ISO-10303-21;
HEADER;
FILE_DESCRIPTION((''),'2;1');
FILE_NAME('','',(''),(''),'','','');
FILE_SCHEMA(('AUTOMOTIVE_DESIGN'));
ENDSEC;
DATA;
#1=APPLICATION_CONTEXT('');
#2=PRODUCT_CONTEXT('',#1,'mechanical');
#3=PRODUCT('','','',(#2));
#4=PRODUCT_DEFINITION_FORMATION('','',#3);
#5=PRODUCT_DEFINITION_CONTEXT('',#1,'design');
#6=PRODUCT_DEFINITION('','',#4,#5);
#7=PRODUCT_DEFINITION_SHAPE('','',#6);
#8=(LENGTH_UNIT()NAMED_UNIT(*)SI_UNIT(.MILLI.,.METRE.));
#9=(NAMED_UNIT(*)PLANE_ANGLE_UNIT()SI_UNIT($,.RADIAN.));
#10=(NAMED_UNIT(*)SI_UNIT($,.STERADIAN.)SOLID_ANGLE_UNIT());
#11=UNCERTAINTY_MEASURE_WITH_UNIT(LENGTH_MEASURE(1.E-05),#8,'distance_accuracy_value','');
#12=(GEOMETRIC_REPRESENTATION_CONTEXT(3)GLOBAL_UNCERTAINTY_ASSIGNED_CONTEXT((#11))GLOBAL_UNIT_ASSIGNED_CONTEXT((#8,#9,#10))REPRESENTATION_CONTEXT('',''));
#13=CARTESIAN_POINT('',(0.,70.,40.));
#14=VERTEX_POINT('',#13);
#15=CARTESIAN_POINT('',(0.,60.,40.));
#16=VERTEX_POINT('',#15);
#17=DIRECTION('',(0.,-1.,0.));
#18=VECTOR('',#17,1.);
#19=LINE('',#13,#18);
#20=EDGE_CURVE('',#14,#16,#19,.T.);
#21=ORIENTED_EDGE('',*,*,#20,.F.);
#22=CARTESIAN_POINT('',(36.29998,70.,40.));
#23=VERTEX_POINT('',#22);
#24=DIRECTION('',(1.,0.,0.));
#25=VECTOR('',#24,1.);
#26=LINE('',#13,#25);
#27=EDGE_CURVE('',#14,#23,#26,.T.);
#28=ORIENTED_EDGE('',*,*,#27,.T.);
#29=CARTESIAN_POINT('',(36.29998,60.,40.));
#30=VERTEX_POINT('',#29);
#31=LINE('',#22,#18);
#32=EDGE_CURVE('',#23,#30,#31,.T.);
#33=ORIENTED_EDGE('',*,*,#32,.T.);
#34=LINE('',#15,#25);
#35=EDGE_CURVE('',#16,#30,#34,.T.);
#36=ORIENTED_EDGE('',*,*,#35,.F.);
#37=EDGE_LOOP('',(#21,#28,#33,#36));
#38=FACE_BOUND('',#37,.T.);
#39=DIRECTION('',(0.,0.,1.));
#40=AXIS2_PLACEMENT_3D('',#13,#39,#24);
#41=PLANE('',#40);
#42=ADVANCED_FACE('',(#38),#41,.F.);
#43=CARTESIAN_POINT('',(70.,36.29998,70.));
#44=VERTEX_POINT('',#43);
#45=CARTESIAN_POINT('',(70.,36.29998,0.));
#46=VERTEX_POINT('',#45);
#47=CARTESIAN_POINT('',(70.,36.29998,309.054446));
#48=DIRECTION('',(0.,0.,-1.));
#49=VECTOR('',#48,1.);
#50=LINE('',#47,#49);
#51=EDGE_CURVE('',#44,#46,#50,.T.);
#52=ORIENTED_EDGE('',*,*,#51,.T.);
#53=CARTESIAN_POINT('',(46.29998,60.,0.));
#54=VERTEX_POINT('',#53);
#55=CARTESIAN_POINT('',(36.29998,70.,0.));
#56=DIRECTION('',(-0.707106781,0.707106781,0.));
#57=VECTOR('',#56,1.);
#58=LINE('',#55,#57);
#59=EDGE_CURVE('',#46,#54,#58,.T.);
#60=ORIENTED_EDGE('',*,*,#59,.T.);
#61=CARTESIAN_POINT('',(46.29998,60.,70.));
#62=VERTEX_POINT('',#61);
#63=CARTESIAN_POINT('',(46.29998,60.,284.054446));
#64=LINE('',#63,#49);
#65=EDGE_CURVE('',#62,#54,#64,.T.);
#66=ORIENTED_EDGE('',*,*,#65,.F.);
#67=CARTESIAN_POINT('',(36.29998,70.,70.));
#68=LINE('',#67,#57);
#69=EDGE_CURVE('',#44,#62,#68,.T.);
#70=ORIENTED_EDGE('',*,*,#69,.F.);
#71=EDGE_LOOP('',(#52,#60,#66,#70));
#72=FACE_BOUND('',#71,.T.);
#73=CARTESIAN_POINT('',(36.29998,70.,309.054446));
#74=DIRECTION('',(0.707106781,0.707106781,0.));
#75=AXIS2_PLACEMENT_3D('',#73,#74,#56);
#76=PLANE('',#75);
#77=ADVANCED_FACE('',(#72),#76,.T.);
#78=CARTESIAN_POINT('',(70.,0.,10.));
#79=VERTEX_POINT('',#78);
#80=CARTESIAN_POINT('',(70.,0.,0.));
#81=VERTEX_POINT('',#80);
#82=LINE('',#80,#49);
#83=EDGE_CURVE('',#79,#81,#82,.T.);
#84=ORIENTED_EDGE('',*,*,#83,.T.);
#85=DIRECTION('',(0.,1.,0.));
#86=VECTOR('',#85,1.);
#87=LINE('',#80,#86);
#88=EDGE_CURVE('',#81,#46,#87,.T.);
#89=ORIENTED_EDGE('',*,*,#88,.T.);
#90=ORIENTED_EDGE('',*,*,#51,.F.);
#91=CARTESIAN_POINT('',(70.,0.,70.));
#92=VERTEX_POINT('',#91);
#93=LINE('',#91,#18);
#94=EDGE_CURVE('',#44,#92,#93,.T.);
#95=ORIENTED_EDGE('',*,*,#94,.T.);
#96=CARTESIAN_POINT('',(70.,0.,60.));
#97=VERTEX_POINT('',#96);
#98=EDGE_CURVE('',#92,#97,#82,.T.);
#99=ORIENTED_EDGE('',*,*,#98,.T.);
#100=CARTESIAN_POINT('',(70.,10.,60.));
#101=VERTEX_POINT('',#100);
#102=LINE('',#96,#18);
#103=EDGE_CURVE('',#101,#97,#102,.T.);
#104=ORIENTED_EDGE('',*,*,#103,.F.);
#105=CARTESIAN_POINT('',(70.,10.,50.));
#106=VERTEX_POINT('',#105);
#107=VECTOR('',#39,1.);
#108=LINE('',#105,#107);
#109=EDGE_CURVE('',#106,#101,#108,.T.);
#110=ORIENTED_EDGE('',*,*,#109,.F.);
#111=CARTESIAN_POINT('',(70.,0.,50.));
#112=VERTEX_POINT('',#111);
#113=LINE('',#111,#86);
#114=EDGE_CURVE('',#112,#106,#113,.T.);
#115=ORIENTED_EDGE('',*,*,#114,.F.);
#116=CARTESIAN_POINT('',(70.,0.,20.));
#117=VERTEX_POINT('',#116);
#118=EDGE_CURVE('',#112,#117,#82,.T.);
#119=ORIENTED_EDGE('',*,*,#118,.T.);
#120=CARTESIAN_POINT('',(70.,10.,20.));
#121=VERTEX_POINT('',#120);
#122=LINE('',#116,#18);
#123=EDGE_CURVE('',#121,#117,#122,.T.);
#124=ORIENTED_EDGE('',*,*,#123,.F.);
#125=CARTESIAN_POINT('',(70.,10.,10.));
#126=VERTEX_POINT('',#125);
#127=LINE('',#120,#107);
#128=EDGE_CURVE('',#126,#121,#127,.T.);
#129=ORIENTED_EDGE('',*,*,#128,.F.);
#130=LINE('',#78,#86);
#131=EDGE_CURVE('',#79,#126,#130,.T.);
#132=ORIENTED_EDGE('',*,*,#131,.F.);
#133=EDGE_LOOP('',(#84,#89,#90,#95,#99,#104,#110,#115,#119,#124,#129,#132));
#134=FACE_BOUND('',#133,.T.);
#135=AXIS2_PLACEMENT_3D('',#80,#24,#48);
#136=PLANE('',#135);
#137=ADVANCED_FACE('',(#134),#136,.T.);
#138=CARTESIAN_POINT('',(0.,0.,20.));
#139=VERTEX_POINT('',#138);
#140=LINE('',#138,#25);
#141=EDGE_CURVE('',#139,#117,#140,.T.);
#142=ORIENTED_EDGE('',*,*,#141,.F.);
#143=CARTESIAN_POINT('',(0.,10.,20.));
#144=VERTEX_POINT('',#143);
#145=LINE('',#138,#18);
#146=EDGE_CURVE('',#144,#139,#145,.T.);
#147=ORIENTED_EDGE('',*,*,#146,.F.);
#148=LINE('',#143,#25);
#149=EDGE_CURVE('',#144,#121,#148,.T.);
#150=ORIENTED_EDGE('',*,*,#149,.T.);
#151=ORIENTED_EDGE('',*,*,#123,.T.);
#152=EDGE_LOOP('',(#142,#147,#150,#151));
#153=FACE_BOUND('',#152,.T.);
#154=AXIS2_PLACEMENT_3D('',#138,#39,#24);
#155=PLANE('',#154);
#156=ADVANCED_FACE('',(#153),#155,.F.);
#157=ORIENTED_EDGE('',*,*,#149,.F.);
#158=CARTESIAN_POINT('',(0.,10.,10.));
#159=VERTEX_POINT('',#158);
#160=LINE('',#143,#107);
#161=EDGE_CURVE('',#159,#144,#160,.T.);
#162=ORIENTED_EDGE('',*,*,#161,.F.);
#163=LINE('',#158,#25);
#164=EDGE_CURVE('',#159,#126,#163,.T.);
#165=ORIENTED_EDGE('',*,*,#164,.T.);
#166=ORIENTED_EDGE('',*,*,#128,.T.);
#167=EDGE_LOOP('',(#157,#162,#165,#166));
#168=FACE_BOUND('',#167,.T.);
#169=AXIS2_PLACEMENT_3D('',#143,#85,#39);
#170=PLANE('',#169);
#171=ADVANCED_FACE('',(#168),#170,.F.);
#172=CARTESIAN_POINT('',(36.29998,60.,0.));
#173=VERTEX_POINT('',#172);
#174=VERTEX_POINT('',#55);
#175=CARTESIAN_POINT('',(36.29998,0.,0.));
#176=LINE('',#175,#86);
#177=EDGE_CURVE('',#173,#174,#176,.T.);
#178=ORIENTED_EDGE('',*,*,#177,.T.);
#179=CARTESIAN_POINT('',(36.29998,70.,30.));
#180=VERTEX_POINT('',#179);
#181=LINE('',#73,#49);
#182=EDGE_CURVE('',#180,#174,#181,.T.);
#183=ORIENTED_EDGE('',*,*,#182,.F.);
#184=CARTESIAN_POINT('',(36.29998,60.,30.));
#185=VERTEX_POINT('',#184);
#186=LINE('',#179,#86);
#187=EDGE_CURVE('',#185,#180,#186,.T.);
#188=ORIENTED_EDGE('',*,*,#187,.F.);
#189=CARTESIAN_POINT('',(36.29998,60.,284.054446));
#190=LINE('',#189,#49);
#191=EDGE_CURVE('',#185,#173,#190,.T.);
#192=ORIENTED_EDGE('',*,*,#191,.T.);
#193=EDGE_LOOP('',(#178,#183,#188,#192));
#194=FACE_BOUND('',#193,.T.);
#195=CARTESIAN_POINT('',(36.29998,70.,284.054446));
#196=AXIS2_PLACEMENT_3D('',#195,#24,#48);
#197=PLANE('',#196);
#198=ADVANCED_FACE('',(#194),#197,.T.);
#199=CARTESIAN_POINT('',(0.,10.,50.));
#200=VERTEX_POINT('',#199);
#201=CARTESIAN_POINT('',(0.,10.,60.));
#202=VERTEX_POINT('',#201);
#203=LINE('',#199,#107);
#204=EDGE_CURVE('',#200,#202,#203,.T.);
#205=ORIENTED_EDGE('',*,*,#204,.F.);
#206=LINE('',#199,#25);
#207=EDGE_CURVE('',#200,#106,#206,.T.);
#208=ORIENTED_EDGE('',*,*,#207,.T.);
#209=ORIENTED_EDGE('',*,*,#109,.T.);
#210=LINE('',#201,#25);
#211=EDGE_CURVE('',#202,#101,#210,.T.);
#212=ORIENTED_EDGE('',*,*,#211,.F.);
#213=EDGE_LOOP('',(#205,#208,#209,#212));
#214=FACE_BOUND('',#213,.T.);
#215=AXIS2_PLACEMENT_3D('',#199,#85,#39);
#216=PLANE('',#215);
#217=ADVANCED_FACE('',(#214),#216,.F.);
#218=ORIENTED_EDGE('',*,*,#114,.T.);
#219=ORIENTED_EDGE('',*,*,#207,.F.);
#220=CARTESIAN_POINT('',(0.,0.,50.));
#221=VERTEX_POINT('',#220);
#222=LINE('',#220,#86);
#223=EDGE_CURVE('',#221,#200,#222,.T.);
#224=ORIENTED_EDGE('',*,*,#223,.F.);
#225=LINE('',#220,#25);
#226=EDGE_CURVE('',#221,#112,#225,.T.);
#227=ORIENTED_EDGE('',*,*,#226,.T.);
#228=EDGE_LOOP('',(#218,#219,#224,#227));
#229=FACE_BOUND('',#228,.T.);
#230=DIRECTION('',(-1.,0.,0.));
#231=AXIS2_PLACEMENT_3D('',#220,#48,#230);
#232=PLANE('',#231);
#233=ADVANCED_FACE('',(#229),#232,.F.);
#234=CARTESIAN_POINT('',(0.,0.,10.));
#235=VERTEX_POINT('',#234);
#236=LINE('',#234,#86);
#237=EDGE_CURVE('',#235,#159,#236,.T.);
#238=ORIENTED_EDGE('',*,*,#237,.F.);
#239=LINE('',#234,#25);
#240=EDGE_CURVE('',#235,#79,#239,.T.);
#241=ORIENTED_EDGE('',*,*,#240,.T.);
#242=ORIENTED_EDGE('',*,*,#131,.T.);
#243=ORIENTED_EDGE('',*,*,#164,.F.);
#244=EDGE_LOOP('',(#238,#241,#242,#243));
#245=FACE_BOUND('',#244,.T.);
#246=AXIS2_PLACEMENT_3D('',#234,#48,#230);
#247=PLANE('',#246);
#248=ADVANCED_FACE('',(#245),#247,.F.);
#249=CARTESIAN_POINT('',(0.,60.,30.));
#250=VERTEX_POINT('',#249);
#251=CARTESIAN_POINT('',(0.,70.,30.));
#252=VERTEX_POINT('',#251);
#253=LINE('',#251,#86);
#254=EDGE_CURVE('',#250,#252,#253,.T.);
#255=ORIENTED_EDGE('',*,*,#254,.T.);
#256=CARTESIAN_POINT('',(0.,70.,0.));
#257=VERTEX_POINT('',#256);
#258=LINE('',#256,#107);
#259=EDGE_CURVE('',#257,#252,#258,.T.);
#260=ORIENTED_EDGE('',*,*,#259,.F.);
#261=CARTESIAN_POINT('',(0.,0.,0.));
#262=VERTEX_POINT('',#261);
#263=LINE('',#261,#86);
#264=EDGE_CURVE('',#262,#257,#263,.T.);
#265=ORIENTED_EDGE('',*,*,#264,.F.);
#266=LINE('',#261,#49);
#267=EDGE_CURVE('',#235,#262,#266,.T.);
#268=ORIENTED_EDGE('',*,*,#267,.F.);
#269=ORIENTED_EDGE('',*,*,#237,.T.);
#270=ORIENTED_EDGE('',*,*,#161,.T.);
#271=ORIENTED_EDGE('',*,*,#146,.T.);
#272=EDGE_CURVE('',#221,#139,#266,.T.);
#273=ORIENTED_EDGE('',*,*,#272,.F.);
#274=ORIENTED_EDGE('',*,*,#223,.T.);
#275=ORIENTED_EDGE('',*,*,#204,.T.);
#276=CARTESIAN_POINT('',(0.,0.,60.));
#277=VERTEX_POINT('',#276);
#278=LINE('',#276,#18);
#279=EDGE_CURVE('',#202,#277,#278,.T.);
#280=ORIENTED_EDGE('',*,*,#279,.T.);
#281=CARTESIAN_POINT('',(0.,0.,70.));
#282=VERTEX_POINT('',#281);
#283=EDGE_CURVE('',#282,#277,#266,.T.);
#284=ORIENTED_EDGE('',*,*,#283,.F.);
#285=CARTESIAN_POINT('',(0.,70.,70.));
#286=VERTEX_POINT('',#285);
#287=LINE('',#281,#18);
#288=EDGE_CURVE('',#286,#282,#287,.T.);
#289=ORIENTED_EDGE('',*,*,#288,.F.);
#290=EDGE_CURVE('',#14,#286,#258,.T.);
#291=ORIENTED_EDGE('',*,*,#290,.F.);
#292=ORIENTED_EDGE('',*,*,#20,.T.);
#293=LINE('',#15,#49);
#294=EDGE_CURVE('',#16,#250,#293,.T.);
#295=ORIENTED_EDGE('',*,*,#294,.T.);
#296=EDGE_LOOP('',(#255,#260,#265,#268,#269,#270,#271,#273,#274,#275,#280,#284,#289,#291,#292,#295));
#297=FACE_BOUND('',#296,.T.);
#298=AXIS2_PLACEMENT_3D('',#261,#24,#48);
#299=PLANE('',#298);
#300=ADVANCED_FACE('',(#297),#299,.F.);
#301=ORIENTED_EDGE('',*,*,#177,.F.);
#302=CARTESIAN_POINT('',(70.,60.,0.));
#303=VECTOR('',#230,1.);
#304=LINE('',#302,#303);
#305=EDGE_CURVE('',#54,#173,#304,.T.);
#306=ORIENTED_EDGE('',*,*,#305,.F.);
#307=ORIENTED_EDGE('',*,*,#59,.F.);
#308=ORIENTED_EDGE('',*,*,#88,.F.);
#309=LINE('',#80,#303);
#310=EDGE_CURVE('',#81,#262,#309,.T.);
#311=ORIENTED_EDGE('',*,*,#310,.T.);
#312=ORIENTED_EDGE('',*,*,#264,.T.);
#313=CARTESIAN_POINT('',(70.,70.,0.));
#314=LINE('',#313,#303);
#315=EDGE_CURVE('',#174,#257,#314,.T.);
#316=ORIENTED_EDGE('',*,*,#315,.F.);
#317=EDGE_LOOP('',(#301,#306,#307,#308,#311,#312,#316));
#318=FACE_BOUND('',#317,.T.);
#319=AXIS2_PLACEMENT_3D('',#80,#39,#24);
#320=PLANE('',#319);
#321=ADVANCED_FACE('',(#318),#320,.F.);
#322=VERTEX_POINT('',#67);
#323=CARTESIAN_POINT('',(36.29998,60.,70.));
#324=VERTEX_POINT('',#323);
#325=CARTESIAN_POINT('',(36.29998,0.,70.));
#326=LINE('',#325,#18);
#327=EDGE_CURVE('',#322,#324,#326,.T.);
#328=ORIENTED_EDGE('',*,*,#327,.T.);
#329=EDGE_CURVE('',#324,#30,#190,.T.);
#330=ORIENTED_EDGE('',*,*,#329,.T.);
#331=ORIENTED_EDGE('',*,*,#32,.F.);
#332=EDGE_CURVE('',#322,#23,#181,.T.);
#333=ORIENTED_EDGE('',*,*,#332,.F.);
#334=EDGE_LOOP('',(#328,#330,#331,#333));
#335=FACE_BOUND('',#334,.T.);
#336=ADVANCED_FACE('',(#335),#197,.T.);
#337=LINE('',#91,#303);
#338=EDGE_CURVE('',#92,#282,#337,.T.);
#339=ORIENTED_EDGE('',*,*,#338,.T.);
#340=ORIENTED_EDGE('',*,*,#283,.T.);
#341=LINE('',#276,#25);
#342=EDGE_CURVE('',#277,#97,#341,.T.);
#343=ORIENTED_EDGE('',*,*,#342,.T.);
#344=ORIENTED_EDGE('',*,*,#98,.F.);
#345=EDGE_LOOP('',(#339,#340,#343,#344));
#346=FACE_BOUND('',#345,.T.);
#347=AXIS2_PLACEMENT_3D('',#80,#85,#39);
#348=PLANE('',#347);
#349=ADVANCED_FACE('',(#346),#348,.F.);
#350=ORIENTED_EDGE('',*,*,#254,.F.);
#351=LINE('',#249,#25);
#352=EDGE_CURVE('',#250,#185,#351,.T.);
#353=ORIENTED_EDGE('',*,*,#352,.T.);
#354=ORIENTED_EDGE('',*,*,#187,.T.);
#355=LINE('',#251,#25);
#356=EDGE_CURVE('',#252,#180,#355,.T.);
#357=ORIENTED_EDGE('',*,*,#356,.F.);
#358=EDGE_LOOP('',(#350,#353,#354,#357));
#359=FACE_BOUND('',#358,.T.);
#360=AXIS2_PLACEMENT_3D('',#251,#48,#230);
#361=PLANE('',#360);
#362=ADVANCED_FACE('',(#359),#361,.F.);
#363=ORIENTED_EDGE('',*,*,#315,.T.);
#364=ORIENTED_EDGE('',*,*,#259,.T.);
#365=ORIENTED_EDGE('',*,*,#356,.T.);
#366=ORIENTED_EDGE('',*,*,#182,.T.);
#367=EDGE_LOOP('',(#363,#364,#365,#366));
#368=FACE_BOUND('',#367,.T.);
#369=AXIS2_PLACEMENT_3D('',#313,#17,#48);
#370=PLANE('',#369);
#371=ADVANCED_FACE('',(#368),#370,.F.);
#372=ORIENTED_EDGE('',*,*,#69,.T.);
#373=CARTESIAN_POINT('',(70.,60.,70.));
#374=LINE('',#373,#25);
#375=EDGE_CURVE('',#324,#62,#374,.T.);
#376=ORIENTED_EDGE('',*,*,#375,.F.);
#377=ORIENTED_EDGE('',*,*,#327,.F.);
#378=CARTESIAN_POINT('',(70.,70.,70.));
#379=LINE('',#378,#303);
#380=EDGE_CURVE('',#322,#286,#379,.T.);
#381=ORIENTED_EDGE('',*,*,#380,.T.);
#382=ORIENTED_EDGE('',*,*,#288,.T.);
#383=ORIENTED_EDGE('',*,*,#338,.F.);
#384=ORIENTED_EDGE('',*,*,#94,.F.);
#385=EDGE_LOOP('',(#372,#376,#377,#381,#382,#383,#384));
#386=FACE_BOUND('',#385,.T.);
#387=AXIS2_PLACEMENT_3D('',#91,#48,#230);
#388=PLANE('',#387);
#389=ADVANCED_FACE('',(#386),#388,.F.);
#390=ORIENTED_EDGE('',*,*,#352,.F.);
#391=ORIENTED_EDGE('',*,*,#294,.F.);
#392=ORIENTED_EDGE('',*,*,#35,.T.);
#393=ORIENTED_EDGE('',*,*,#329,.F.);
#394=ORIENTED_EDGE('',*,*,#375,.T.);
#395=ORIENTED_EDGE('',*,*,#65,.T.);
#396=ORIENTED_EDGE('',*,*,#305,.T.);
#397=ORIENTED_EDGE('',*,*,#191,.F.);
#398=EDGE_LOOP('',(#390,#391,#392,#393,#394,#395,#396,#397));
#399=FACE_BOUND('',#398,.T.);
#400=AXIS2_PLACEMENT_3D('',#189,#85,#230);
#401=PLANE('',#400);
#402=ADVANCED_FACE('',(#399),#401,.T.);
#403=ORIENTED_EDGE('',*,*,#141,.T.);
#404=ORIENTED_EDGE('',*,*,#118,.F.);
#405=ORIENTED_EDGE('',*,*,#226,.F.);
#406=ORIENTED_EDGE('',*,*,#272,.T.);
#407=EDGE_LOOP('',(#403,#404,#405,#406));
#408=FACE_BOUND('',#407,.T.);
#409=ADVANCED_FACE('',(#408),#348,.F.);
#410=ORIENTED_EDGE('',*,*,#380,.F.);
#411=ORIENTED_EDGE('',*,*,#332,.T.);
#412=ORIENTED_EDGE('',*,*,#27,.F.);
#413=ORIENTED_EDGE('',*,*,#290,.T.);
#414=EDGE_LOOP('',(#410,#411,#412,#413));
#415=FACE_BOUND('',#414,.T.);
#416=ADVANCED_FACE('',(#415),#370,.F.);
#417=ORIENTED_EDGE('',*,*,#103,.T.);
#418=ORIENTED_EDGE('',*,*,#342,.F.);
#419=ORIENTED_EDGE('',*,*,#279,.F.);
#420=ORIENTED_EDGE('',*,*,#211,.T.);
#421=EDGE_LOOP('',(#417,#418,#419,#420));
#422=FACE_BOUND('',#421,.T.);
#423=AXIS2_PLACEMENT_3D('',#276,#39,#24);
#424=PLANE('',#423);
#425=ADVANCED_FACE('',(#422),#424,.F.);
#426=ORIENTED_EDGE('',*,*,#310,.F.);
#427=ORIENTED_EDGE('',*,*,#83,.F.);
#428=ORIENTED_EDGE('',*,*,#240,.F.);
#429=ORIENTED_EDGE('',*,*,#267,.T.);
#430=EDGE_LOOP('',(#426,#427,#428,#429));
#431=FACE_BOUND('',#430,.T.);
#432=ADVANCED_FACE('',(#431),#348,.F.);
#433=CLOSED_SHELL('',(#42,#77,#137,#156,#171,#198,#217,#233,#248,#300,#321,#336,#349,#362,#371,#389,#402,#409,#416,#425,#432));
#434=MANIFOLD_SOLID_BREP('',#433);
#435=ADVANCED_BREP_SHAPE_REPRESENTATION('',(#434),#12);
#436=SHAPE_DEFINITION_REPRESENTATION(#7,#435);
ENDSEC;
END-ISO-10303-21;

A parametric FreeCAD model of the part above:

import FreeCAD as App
import Part
import Sketcher
from FreeCAD import Vector
Q = App.Units.Quantity


def add_polygon(sketch, points):
    """Adds a closed chain of lines whose ends are joined by coincident constraints."""
    first, n = sketch.GeometryCount, len(points)
    for a, b in zip(points, points[1:] + points[:1]):
        sketch.addGeometry(Part.LineSegment(App.Vector(*a, 0), App.Vector(*b, 0)), False)
    for i in range(n):
        sketch.addConstraint(Sketcher.Constraint("Coincident", first + i, 2, first + (i + 1) % n, 1))

doc = App.newDocument("Part")
body = doc.addObject("PartDesign::Body", "Body")

# Sketch on YZ plane
sketch1 = body.newObject("Sketcher::SketchObject", "Sketch")
sketch1.AttachmentSupport = (doc.getObject("YZ_Plane"), [""])
sketch1.MapMode = "FlatFace"
add_polygon(sketch1, [(70, 70), (0, 70), (0, 0), (70, 0)])  # lines 0-3
sketch1.addConstraint(Sketcher.Constraint("Horizontal", 0))
sketch1.addConstraint(Sketcher.Constraint("Vertical", 1))
sketch1.addConstraint(Sketcher.Constraint("Horizontal", 2))
sketch1.addConstraint(Sketcher.Constraint("Vertical", 3))
sketch1.addConstraint(Sketcher.Constraint("Coincident", 1, 2, -1, 1))
sketch1.addConstraint(Sketcher.Constraint("Equal", 2, 1))
sketch1.addConstraint(Sketcher.Constraint("DistanceX", 0, 2, 0, 1, Q("70 mm")))
pad1 = body.newObject("PartDesign::Pad", "Pad")
pad1.Profile = sketch1
pad1.Length = 70

# Sketch on XY plane
sketch2 = body.newObject("Sketcher::SketchObject", "Sketch001")
sketch2.AttachmentSupport = (doc.getObject("XY_Plane"), [""])
sketch2.MapMode = "FlatFace"
sketch2.AttachmentOffset = App.Placement(Vector(0, 0, 70), App.Rotation())
add_polygon(sketch2, [(-82.28511, 188.58509), (188.58509, -82.28511), (425.755269, 154.88507), (154.88507, 425.755269)])  # lines 0-3
sketch2.addConstraint(Sketcher.Constraint("Perpendicular", 0, 1))
sketch2.addConstraint(Sketcher.Constraint("Perpendicular", 1, 2))
sketch2.addConstraint(Sketcher.Constraint("Perpendicular", 2, 3))
sketch2.addConstraint(Sketcher.Constraint("Angle", 0, Q("-45 deg")))
sketch2.addConstraint(Sketcher.Constraint("DistanceX", 2, 2, 1, 2, Q("270.8702 mm")))
sketch2.addConstraint(Sketcher.Constraint("DistanceX", -1, 1, 0, 2, Q("188.58509 mm")))
sketch2.addConstraint(Sketcher.Constraint("DistanceY", 0, 2, -1, 1, Q("82.28511 mm")))
sketch2.addConstraint(Sketcher.Constraint("DistanceX", -1, 1, 1, 2, Q("425.755269 mm")))
pocket1 = body.newObject("PartDesign::Pocket", "Pocket")
pocket1.Profile = sketch2
pocket1.Type = "ThroughAll"
pocket1.Midplane = True

# Sketch on YZ plane
sketch3 = body.newObject("Sketcher::SketchObject", "Sketch002")
sketch3.AttachmentSupport = (doc.getObject("YZ_Plane"), [""])
sketch3.MapMode = "FlatFace"
sketch3.AttachmentOffset = App.Placement(Vector(0, 0, 70), App.Rotation())
add_polygon(sketch3, [(10, 20), (0, 20), (0, 10), (10, 10)])  # lines 0-3
add_polygon(sketch3, [(10, 60), (0, 60), (0, 50), (10, 50)])  # lines 4-7
sketch3.addConstraint(Sketcher.Constraint("Horizontal", 0))
sketch3.addConstraint(Sketcher.Constraint("Vertical", 1))
sketch3.addConstraint(Sketcher.Constraint("Horizontal", 2))
sketch3.addConstraint(Sketcher.Constraint("Vertical", 3))
sketch3.addConstraint(Sketcher.Constraint("Horizontal", 4))
sketch3.addConstraint(Sketcher.Constraint("Vertical", 5))
sketch3.addConstraint(Sketcher.Constraint("Horizontal", 6))
sketch3.addConstraint(Sketcher.Constraint("Vertical", 7))
sketch3.addConstraint(Sketcher.Constraint("PointOnObject", 0, 2, -2))
sketch3.addConstraint(Sketcher.Constraint("PointOnObject", 4, 2, -2))
sketch3.addConstraint(Sketcher.Constraint("Vertical", 3, 2, 6, 2))
sketch3.addConstraint(Sketcher.Constraint("Equal", 6, 1))
sketch3.addConstraint(Sketcher.Constraint("Equal", 3, 5))
sketch3.addConstraint(Sketcher.Constraint("DistanceX", 0, 2, 0, 1, Q("10 mm")))
sketch3.addConstraint(Sketcher.Constraint("DistanceY", -1, 1, 0, 2, Q("20 mm")))
sketch3.addConstraint(Sketcher.Constraint("DistanceY", -1, 1, 4, 2, Q("60 mm")))
pocket2 = body.newObject("PartDesign::Pocket", "Pocket001")
pocket2.Profile = sketch3
pocket2.Length = 70

# Sketch on XY plane
sketch4 = body.newObject("Sketcher::SketchObject", "Sketch003")
sketch4.AttachmentSupport = (doc.getObject("XY_Plane"), [""])
sketch4.MapMode = "FlatFace"
sketch4.AttachmentOffset = App.Placement(Vector(0, 0, 70), App.Rotation())
add_polygon(sketch4, [(36.29998, 237.704642), (36.29998, 60), (214.004622, 60), (451.174801, 297.170179), (273.470159, 474.874822)])  # lines 0-4
sketch4.addConstraint(Sketcher.Constraint("Vertical", 0))
sketch4.addConstraint(Sketcher.Constraint("Horizontal", 1))
sketch4.addConstraint(Sketcher.Constraint("Perpendicular", 2, 3))
sketch4.addConstraint(Sketcher.Constraint("Perpendicular", 3, 4))
sketch4.addConstraint(Sketcher.Constraint("Equal", 1, 0))
sketch4.addConstraint(Sketcher.Constraint("Equal", 2, 4))
sketch4.addConstraint(Sketcher.Constraint("DistanceY", -1, 1, 0, 2, Q("60 mm")))
sketch4.addConstraint(Sketcher.Constraint("DistanceX", -1, 1, 2, 2, Q("451.174801 mm")))
sketch4.addConstraint(Sketcher.Constraint("DistanceX", 1, 1, 1, 2, Q("177.704642 mm")))
sketch4.addConstraint(Sketcher.Constraint("DistanceX", -1, 1, 0, 2, Q("36.29998 mm")))
pocket3 = body.newObject("PartDesign::Pocket", "Pocket002")
pocket3.Profile = sketch4
pocket3.Type = "ThroughAll"
pocket3.Midplane = True

# Sketch on YZ plane
sketch5 = body.newObject("Sketcher::SketchObject", "Sketch004")
sketch5.AttachmentSupport = (doc.getObject("YZ_Plane"), [""])
sketch5.MapMode = "FlatFace"
sketch5.AttachmentOffset = App.Placement(Vector(0, 0, 36.29998), App.Rotation())
add_polygon(sketch5, [(70, 40), (60, 40), (60, 30), (70, 30)])  # lines 0-3
sketch5.addConstraint(Sketcher.Constraint("Horizontal", 0))
sketch5.addConstraint(Sketcher.Constraint("Vertical", 1))
sketch5.addConstraint(Sketcher.Constraint("Horizontal", 2))
sketch5.addConstraint(Sketcher.Constraint("Vertical", 3))
sketch5.addConstraint(Sketcher.Constraint("Equal", 2, 1))
sketch5.addConstraint(Sketcher.Constraint("DistanceX", 0, 2, 0, 1, Q("10 mm")))
sketch5.addConstraint(Sketcher.Constraint("DistanceX", -1, 1, 0, 2, Q("60 mm")))
sketch5.addConstraint(Sketcher.Constraint("DistanceY", -1, 1, 0, 2, Q("40 mm")))
pocket4 = body.newObject("PartDesign::Pocket", "Pocket003")
pocket4.Profile = sketch5
pocket4.Type = "ThroughAll"
pocket4.Midplane = True

doc.recompute()
